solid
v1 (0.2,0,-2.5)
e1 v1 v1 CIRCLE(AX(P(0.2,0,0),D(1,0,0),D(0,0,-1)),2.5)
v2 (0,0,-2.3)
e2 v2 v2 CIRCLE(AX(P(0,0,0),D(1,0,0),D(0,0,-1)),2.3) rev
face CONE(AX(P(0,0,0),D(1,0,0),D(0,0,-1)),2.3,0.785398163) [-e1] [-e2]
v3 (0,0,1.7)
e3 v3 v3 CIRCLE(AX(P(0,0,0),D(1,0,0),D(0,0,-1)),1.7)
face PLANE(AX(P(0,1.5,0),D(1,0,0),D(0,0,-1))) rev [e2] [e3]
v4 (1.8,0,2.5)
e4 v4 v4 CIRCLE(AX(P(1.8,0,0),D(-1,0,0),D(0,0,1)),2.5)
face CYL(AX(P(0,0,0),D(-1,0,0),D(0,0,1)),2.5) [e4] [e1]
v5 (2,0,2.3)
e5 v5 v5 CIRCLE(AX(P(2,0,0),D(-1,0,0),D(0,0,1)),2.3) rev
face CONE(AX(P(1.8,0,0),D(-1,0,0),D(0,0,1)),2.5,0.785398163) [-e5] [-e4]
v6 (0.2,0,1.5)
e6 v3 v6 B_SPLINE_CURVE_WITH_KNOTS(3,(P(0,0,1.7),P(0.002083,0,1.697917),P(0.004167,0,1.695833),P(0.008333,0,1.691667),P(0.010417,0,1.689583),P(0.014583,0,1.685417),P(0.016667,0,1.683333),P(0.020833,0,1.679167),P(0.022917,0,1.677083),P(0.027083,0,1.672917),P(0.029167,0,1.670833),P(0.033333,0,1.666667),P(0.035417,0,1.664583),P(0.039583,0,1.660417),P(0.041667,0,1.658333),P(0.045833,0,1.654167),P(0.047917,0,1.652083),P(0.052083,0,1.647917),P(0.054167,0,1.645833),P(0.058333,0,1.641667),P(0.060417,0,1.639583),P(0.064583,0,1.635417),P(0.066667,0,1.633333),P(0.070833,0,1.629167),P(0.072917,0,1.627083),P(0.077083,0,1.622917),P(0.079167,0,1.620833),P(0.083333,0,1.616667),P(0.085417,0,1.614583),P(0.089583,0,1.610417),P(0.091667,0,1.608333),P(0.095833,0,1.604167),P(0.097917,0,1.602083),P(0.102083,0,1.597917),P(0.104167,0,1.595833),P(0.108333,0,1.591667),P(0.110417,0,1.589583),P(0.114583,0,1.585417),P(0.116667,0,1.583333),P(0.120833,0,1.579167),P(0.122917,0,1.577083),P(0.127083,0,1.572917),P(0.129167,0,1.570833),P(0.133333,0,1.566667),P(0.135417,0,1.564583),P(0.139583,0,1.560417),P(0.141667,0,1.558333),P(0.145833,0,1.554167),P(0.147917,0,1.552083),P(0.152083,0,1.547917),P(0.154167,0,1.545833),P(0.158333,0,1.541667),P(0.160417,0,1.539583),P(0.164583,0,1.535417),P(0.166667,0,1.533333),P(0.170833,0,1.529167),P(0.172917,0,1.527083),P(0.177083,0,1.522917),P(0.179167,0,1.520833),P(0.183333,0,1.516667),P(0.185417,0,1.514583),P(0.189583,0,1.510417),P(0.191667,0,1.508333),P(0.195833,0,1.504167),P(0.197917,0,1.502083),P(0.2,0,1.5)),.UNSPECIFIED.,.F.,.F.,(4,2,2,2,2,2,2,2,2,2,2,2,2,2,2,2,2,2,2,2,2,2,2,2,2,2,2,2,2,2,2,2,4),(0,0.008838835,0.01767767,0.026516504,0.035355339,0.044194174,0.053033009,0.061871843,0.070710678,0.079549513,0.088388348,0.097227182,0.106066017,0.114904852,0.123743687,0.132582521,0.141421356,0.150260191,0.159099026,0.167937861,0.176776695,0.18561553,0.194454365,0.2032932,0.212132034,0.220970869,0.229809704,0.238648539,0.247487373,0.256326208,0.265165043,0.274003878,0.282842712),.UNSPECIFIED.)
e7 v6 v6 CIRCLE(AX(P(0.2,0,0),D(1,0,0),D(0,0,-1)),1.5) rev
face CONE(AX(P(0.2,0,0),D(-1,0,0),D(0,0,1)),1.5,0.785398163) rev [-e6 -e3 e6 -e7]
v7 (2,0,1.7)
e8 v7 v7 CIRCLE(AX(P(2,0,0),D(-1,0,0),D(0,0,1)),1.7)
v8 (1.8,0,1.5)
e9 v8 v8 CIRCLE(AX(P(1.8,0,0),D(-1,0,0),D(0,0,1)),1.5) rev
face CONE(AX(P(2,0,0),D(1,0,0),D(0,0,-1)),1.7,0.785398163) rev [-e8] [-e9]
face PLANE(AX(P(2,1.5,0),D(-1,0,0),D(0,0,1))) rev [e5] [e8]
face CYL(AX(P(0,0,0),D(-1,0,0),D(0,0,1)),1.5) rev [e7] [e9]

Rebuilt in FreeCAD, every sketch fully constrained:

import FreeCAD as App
import Part
import Sketcher
from FreeCAD import Vector


def edges_at(feature, points):
    """Names of the edges that pass closest to the given points."""
    edges = feature.Shape.Edges
    near = lambda p: min(range(len(edges)), key=lambda i: edges[i].distToShape(Part.Vertex(*p))[0])
    return sorted({f"Edge{near(p) + 1}" for p in points})

doc = App.newDocument("Part")
params = doc.addObject("Spreadsheet::Sheet", "Params")
for row, (alias, value) in enumerate([
    ("sketch1_width", "2 mm"),
    ("sketch1_height", "1 mm"),
    ("revolution_angle", "360 deg"),
    ("chamfer_size", "0.2 mm"),
], start=1):
    params.set(f"A{row}", alias)
    params.set(f"B{row}", "=" + value)
    params.setAlias(f"B{row}", alias)

body = doc.addObject("PartDesign::Body", "Body")

sketch1 = body.newObject("Sketcher::SketchObject", "Sketch")
sketch1.AttachmentSupport = (doc.getObject("XY_Plane"), [""])
sketch1.MapMode = "FlatFace"
sketch1.addGeometry(Part.LineSegment(Vector(0, 2.5, 0), Vector(0, 1.5, 0)), False)
sketch1.addGeometry(Part.LineSegment(Vector(0, 1.5, 0), Vector(2, 1.5, 0)), False)
sketch1.addGeometry(Part.LineSegment(Vector(2, 1.5, 0), Vector(2, 2.5, 0)), False)
sketch1.addGeometry(Part.LineSegment(Vector(2, 2.5, 0), Vector(0, 2.5, 0)), False)
sketch1.addConstraint(Sketcher.Constraint("Coincident", 0, 2, 1, 1))
sketch1.addConstraint(Sketcher.Constraint("Coincident", 1, 2, 2, 1))
sketch1.addConstraint(Sketcher.Constraint("Coincident", 2, 2, 3, 1))
sketch1.addConstraint(Sketcher.Constraint("Coincident", 3, 2, 0, 1))
sketch1.addConstraint(Sketcher.Constraint("Vertical", 0))
sketch1.addConstraint(Sketcher.Constraint("Horizontal", 1))
sketch1.addConstraint(Sketcher.Constraint("Vertical", 2))
sketch1.addConstraint(Sketcher.Constraint("Horizontal", 3))
sketch1.addConstraint(Sketcher.Constraint("PointOnObject", 0, 2, -2))
sketch1.addConstraint(Sketcher.Constraint("DistanceX", 1, 1, 1, 2, 2.0))
sketch1.addConstraint(Sketcher.Constraint("DistanceY", 0, 2, 0, 1, 1.0))
sketch1.addConstraint(Sketcher.Constraint("DistanceY", -1, 1, 0, 2, 1.5))
sketch1.setExpression("Constraints[9]", "Params.sketch1_width")
sketch1.setExpression("Constraints[10]", "Params.sketch1_height")
revolution = body.newObject("PartDesign::Revolution", "Revolution")
revolution.Profile = sketch1
revolution.ReferenceAxis = (sketch1, ["H_Axis"])
revolution.setExpression("Angle", "Params.revolution_angle")
doc.recompute()

chamfer = body.newObject("PartDesign::Chamfer", "Chamfer")
chamfer.Base = (revolution, edges_at(revolution, [
    (0, 0, -1.5),
    (2, 0, -1.5),
    (2, 0, -2.5),
    (0, 0, -2.5),
]))
chamfer.setExpression("Size", "Params.chamfer_size")

doc.recompute()
